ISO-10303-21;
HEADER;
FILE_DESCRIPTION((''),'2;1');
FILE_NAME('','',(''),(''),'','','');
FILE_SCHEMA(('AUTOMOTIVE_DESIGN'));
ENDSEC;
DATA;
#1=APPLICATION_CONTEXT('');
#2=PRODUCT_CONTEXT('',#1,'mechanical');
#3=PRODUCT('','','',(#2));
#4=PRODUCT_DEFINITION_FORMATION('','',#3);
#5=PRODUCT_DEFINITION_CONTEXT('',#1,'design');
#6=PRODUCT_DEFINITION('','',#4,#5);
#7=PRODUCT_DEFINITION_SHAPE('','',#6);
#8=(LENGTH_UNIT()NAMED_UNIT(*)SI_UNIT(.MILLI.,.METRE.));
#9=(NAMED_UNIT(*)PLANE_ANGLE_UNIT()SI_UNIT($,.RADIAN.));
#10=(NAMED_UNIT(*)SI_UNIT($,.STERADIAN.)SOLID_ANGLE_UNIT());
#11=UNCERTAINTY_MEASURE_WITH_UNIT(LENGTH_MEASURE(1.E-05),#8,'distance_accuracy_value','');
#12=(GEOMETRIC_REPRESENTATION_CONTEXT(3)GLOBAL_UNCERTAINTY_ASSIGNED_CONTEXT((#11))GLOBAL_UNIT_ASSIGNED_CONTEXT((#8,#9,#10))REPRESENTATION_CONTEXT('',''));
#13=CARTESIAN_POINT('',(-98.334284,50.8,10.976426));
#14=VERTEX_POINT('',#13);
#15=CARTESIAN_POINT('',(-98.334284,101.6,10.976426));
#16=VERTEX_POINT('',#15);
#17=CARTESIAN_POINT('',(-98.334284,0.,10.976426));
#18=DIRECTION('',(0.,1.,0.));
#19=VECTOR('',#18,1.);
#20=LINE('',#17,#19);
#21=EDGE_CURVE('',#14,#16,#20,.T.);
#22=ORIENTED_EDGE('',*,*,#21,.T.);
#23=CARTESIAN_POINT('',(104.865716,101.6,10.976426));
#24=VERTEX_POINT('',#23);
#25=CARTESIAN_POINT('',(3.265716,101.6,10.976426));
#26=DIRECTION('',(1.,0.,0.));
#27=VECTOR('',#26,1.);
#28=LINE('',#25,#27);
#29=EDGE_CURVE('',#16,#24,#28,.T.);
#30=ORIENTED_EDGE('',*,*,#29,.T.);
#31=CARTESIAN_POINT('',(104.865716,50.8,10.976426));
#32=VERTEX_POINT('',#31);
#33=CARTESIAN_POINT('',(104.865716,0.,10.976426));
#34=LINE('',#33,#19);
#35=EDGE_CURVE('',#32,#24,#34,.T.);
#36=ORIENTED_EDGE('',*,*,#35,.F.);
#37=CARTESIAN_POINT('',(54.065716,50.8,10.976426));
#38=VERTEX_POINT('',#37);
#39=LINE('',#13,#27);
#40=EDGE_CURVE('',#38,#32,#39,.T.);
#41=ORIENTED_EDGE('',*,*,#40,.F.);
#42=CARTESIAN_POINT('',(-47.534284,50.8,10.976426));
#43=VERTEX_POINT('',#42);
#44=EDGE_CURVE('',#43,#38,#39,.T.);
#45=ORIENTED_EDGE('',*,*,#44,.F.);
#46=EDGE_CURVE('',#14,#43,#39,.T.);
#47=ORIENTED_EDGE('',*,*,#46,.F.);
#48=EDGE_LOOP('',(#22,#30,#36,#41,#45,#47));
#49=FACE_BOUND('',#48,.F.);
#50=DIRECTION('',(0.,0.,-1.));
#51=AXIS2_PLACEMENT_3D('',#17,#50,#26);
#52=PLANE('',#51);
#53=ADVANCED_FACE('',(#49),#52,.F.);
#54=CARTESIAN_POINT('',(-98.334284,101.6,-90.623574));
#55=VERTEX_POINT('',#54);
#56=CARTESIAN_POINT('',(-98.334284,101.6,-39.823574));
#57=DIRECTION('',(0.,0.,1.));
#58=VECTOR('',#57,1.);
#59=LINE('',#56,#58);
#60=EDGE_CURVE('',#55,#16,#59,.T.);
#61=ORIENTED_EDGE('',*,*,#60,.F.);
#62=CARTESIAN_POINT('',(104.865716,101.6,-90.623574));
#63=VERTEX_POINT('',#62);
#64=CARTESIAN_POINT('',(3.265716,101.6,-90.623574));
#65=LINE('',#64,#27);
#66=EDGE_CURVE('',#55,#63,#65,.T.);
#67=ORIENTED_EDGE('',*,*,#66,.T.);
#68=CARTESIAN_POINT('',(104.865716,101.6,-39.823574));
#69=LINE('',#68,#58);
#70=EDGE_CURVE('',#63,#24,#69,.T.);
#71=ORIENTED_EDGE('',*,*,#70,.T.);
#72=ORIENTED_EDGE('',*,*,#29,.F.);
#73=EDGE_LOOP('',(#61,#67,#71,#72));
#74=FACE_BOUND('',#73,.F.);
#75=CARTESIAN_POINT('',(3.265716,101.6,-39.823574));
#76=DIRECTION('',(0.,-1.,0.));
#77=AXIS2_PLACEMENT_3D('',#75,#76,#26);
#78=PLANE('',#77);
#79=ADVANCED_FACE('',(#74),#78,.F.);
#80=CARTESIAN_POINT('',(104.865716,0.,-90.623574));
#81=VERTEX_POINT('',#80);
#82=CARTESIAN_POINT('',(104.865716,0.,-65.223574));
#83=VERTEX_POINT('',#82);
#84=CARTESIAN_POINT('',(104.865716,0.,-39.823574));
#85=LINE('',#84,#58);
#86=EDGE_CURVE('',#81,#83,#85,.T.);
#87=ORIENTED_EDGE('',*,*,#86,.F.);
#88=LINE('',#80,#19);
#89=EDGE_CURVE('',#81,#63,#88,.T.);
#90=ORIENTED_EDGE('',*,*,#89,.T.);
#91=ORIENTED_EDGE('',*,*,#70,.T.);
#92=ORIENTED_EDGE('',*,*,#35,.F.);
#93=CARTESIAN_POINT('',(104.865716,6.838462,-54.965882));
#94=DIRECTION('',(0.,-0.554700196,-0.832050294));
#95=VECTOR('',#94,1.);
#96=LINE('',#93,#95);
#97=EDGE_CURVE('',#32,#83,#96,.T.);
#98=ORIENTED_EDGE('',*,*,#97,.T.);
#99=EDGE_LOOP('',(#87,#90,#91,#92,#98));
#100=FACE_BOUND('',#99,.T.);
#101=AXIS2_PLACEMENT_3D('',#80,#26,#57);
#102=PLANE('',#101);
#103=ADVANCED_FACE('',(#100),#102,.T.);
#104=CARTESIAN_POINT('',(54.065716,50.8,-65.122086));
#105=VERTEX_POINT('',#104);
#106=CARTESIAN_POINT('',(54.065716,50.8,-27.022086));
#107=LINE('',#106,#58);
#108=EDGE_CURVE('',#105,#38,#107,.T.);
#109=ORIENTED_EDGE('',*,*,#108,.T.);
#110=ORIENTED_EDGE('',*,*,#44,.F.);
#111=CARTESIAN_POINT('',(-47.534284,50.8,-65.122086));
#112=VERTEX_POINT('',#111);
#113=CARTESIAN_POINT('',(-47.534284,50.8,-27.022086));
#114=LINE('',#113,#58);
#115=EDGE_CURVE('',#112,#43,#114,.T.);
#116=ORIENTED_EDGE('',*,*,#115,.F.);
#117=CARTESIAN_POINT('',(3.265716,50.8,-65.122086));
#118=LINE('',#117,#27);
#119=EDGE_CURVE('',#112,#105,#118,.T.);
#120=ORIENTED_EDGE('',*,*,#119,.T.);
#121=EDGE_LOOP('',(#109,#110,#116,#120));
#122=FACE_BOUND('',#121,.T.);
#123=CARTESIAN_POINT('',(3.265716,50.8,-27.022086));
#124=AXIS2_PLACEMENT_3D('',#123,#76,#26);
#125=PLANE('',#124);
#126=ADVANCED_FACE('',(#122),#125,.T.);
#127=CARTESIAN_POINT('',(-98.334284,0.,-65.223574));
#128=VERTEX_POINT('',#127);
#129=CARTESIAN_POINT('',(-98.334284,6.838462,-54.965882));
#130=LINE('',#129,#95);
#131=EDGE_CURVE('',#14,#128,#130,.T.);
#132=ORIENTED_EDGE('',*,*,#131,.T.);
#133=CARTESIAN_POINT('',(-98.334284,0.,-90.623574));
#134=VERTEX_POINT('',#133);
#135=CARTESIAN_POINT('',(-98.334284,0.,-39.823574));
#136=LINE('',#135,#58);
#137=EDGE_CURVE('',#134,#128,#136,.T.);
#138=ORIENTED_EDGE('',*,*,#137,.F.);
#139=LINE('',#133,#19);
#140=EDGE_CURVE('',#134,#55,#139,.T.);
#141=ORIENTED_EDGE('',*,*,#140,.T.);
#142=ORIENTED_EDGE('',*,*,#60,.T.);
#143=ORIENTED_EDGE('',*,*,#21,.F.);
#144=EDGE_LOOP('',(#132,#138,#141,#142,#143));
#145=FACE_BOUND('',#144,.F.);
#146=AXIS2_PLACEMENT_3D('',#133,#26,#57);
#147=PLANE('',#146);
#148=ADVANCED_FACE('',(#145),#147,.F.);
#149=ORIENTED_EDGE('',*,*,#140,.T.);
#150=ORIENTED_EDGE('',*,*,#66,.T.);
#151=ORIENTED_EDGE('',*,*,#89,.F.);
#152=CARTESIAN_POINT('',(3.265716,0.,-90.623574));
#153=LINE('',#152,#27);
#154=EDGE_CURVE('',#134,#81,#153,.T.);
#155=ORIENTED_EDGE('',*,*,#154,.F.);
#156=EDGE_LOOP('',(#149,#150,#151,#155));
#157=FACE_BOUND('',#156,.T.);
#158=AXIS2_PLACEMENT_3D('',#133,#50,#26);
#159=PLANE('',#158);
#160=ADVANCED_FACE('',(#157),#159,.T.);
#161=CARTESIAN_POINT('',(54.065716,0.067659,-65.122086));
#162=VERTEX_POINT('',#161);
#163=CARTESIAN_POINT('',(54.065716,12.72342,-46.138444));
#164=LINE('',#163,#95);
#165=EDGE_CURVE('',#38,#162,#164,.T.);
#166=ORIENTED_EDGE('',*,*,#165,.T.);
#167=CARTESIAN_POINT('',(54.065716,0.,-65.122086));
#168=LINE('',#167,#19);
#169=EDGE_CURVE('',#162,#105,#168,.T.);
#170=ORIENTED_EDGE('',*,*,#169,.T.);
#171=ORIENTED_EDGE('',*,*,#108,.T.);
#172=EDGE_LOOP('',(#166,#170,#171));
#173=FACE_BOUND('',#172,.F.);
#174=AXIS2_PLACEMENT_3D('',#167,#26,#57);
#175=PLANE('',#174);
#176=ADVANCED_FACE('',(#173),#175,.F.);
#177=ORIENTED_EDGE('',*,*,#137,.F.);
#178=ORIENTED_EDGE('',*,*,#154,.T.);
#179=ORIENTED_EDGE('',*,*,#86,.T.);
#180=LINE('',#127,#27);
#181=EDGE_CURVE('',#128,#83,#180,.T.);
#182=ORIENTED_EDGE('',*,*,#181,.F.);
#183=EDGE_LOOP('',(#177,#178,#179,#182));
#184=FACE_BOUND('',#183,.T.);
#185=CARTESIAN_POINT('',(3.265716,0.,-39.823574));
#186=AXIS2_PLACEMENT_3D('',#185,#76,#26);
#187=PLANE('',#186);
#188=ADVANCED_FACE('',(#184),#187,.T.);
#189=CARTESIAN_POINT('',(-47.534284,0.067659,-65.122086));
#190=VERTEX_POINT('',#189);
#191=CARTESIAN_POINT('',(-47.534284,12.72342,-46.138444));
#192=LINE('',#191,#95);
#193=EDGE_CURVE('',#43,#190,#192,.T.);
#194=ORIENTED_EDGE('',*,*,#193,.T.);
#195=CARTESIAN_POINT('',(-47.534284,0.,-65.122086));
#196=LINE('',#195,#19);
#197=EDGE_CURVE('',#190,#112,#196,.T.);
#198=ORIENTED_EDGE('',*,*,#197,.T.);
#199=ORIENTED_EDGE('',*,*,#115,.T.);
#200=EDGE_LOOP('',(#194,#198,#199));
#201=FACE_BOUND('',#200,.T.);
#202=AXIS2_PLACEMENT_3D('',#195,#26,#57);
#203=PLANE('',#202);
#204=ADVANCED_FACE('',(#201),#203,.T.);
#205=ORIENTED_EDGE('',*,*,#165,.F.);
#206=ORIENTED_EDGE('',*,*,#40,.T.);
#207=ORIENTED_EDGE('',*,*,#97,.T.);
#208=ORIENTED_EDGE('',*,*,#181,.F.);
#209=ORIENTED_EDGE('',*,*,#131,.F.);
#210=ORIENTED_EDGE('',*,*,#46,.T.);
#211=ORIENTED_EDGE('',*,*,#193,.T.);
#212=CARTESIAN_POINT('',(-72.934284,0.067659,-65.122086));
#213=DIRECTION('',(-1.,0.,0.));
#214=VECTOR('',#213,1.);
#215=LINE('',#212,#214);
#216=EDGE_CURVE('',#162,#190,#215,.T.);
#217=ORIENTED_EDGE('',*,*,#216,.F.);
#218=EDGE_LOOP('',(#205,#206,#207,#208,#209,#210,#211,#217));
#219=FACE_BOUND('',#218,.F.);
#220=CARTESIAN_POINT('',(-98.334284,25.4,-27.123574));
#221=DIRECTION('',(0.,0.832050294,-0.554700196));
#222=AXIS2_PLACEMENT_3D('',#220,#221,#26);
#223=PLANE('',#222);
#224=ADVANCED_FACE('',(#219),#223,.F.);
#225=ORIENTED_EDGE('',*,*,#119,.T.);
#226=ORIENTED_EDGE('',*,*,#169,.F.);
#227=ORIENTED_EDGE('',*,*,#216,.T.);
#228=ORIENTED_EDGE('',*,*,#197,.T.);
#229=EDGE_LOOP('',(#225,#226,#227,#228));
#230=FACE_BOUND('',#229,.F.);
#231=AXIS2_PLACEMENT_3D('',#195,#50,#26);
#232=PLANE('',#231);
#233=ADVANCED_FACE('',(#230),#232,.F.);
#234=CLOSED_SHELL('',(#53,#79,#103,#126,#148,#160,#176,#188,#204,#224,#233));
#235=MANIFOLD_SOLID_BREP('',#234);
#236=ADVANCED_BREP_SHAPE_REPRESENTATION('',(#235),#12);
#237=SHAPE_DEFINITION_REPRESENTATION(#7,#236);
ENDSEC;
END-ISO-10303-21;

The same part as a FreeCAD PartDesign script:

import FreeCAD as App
import Part
import Sketcher
from FreeCAD import Vector
Q = App.Units.Quantity


def edges_at(feature, points):
    """Names of the edges that pass closest to the given points."""
    edges = feature.Shape.Edges
    near = lambda p: min(range(len(edges)), key=lambda i: edges[i].distToShape(Part.Vertex(*p))[0])
    return sorted({f"Edge{near(p) + 1}" for p in points})


def add_polygon(sketch, points):
    """Adds a closed chain of lines whose ends are joined by coincident constraints."""
    first, n = sketch.GeometryCount, len(points)
    for a, b in zip(points, points[1:] + points[:1]):
        sketch.addGeometry(Part.LineSegment(App.Vector(*a, 0), App.Vector(*b, 0)), False)
    for i in range(n):
        sketch.addConstraint(Sketcher.Constraint("Coincident", first + i, 2, first + (i + 1) % n, 1))

doc = App.newDocument("Part")
body = doc.addObject("PartDesign::Body", "Body")

sketch1 = body.newObject("Sketcher::SketchObject", "Sketch")
sketch1.AttachmentSupport = (doc.getObject("XZ_Plane"), [""])
sketch1.MapMode = "FlatFace"
add_polygon(sketch1, [(-98, 11), (-98, -91), (105, -91), (105, 11)])
sketch1.addConstraint([
    Sketcher.Constraint("Vertical", 0),
    Sketcher.Constraint("Horizontal", 1),
    Sketcher.Constraint("Vertical", 2),
    Sketcher.Constraint("Horizontal", 3),
    Sketcher.Constraint("DistanceX", 1, 1, 1, 2, Q("8 in")),
    Sketcher.Constraint("DistanceY", 0, 2, 0, 1, Q("4 in")),
    Sketcher.Constraint("DistanceX", 0, 2, -1, 1, 98.334284),
    Sketcher.Constraint("DistanceY", 0, 2, -1, 1, 90.623574),
])
pad1 = body.newObject("PartDesign::Pad", "Pad")
pad1.Profile = sketch1
pad1.Length = Q("4 in")
pad1.Reversed = True
doc.recompute()

chamfer = body.newObject("PartDesign::Chamfer", "Chamfer")
chamfer.Base = (pad1, edges_at(pad1, [(3.266, 0, 10.976)]))
chamfer.ChamferType = "Two distances"
chamfer.Size = Q("2 in")
chamfer.Size2 = Q("3 in")

sketch2 = body.newObject("Sketcher::SketchObject", "Sketch001")
sketch2.AttachmentSupport = (doc.getObject("XZ_Plane"), [""])
sketch2.MapMode = "FlatFace"
add_polygon(sketch2, [(-48, 11), (-48, -65), (54, -65), (54, 11)])
sketch2.addConstraint([
    Sketcher.Constraint("Vertical", 0),
    Sketcher.Constraint("Horizontal", 1),
    Sketcher.Constraint("Vertical", 2),
    Sketcher.Constraint("Horizontal", 3),
    Sketcher.Constraint("DistanceX", 1, 1, 1, 2, Q("4 in")),
    Sketcher.Constraint("DistanceY", 0, 2, 0, 1, Q("3 in")),
    Sketcher.Constraint("DistanceX", 0, 2, -1, 1, 47.534284),
    Sketcher.Constraint("DistanceY", 0, 2, -1, 1, 65.122086),
])
pocket1 = body.newObject("PartDesign::Pocket", "Pocket")
pocket1.Profile = sketch2
pocket1.Length = Q("2 in")

doc.recompute()
